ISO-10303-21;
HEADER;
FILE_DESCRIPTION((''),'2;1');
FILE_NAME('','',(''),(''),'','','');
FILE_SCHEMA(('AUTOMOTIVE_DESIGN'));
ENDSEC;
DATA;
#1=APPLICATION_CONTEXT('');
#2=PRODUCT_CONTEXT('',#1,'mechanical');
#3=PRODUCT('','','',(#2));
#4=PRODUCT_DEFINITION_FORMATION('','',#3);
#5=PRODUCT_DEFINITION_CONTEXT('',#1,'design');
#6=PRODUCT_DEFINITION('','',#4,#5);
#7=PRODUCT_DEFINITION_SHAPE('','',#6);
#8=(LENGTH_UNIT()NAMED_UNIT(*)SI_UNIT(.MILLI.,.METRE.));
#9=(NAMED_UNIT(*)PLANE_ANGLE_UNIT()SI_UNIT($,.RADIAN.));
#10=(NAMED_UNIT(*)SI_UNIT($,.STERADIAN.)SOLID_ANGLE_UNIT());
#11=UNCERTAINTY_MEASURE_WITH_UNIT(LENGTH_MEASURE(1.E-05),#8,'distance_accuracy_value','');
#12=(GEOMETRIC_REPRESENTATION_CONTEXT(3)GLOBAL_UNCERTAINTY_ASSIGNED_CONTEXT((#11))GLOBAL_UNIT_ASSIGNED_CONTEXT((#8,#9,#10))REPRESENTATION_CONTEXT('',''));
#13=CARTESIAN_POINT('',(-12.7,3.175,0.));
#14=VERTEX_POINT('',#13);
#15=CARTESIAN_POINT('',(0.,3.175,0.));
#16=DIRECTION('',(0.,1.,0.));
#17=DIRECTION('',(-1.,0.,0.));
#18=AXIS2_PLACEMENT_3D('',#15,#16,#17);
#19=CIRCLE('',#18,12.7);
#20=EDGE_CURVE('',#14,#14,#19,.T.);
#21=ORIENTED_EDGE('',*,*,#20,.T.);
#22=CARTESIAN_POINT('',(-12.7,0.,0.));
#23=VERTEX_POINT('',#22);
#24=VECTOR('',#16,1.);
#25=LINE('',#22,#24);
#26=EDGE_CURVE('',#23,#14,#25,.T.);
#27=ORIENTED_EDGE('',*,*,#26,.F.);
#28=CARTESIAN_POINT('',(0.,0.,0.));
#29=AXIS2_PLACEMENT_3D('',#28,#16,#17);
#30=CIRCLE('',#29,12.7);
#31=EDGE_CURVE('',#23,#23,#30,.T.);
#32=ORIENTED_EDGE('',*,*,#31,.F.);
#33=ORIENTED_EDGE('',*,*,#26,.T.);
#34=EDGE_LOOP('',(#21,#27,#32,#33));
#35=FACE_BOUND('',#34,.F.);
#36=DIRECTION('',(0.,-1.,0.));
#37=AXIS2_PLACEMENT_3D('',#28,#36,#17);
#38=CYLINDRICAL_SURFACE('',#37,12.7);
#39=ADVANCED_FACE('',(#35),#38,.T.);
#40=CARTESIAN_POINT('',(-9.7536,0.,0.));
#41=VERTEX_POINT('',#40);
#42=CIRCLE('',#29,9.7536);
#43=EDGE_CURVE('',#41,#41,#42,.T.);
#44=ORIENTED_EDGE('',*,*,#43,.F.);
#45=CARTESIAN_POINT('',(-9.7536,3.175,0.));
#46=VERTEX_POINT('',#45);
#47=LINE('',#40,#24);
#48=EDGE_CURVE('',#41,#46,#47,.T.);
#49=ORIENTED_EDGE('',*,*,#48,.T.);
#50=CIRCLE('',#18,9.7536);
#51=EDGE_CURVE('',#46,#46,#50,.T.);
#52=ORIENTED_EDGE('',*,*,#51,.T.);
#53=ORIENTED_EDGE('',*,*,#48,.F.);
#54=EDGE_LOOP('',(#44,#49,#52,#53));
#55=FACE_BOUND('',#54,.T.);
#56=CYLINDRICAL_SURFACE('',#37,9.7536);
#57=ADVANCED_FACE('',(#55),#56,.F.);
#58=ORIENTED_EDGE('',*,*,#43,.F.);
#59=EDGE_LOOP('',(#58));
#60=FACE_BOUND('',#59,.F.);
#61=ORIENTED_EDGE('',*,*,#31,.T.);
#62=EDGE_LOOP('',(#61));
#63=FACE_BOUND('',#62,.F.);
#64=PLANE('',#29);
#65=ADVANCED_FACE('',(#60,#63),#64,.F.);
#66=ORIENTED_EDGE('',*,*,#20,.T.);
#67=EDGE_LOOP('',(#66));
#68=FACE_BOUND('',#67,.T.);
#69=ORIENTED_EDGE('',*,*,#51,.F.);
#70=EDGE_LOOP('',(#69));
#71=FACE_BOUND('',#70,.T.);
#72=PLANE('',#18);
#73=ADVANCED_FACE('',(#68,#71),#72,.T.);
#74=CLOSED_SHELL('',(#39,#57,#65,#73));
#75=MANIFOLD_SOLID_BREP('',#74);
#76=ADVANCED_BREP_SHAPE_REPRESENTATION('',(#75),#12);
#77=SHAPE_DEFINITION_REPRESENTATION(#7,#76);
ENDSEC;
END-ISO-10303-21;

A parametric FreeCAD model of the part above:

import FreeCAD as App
import Part
import Sketcher
Q = App.Units.Quantity

doc = App.newDocument("Part")
body = doc.addObject("PartDesign::Body", "Body")

sketch1 = body.newObject("Sketcher::SketchObject", "Sketch")
sketch1.AttachmentSupport = (doc.getObject("XZ_Plane"), [""])
sketch1.MapMode = "FlatFace"
sketch1.addGeometry(Part.Circle(App.Vector(0, 0, 0), App.Vector(0, 0, 1), 12.7), False)
sketch1.addGeometry(Part.Circle(App.Vector(0, 0, 0), App.Vector(0, 0, 1), 9.7536), False)
sketch1.addConstraint(Sketcher.Constraint("Coincident", 0, 3, -1, 1))
sketch1.addConstraint(Sketcher.Constraint("Coincident", 1, 3, -1, 1))
sketch1.addConstraint(Sketcher.Constraint("Diameter", 0, Q("1 in")))
sketch1.addConstraint(Sketcher.Constraint("Diameter", 1, Q("0.768 in")))
pad1 = body.newObject("PartDesign::Pad", "Pad")
pad1.Profile = sketch1
pad1.Length = Q("0.125 in")
pad1.Reversed = True

doc.recompute()
